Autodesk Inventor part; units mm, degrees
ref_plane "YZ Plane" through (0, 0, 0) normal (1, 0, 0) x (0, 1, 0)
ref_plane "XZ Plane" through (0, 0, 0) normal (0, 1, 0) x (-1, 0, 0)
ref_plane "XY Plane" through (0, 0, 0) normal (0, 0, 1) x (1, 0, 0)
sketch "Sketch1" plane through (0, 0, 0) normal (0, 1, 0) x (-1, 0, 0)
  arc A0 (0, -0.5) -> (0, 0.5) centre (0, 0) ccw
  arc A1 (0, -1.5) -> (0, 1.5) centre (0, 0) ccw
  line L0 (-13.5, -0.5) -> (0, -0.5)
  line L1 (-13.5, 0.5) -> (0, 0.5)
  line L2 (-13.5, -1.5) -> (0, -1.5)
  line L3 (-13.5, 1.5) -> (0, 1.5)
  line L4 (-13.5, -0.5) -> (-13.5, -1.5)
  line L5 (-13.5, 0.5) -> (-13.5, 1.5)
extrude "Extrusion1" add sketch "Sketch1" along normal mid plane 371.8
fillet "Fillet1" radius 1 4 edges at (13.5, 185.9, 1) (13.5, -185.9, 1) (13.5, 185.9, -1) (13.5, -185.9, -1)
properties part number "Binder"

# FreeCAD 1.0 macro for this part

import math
import FreeCAD as App
import Part
import Sketcher

V = App.Vector


def edges_at(feature, points):
    """Names of the edges that pass closest to the given points."""
    edges = feature.Shape.Edges
    near = lambda p: min(range(len(edges)), key=lambda i: edges[i].distToShape(Part.Vertex(*p))[0])
    return sorted({f"Edge{near(p) + 1}" for p in points})

doc = App.newDocument("Part")
body = doc.addObject("PartDesign::Body", "Body")

# Sketch on XZ plane
sketch1 = doc.addObject("Sketcher::SketchObject", "Sketch")
body.addObject(sketch1)
sketch1.AttachmentSupport = (doc.XZ_Plane, [""])
sketch1.MapMode = "FlatFace"
sketch1.addGeometry([
    Part.ArcOfCircle(Part.Circle(V(0, 0, 0), V(0, 0, 1), 0.5), math.radians(90), math.radians(270)),  # 0
    Part.LineSegment(V(0, -0.5, 0), V(13.5, -0.5, 0)),  # 1
    Part.LineSegment(V(13.5, -0.5, 0), V(13.5, -1.5, 0)),  # 2
    Part.LineSegment(V(13.5, -1.5, 0), V(0, -1.5, 0)),  # 3
    Part.ArcOfCircle(Part.Circle(V(0, 0, 0), V(0, 0, 1), 1.5), math.radians(90), math.radians(270)),  # 4
    Part.LineSegment(V(0, 1.5, 0), V(13.5, 1.5, 0)),  # 5
    Part.LineSegment(V(13.5, 1.5, 0), V(13.5, 0.5, 0)),  # 6
    Part.LineSegment(V(13.5, 0.5, 0), V(0, 0.5, 0)),  # 7
], False)
sketch1.addConstraint([
    Sketcher.Constraint("Tangent", 0, 2, 1, 1),
    Sketcher.Constraint("Coincident", 1, 2, 2, 1),
    Sketcher.Constraint("Coincident", 2, 2, 3, 1),
    Sketcher.Constraint("Tangent", 3, 2, 4, 2),
    Sketcher.Constraint("Tangent", 4, 1, 5, 1),
    Sketcher.Constraint("Coincident", 5, 2, 6, 1),
    Sketcher.Constraint("Coincident", 6, 2, 7, 1),
    Sketcher.Constraint("Tangent", 7, 2, 0, 1),
    Sketcher.Constraint("Horizontal", 1),
    Sketcher.Constraint("Vertical", 2),
    Sketcher.Constraint("Horizontal", 3),
    Sketcher.Constraint("Horizontal", 5),
    Sketcher.Constraint("Vertical", 6),
    Sketcher.Constraint("Horizontal", 7),
    Sketcher.Constraint("Coincident", 0, 3, -1, 1),
    Sketcher.Constraint("Coincident", 4, 3, -1, 1),
    Sketcher.Constraint("Vertical", 2, 2, 5, 2),
    Sketcher.Constraint("Radius", 0, 0.5),
    Sketcher.Constraint("Radius", 4, 1.5),
    Sketcher.Constraint("DistanceX", 1, 1, 1, 2, 13.5),
])
pad1 = doc.addObject("PartDesign::Pad", "Pad")
body.addObject(pad1)
pad1.Profile = sketch1
pad1.Length = 371.8
pad1.Midplane = True
doc.recompute()

fillet = doc.addObject("PartDesign::Fillet", "Fillet")
body.addObject(fillet)
fillet.Base = (pad1, edges_at(pad1, [
    (13.5, 185.9, 1),
    (13.5, -185.9, 1),
    (13.5, 185.9, -1),
    (13.5, -185.9, -1),
]))
fillet.Radius = 1

doc.recompute()
